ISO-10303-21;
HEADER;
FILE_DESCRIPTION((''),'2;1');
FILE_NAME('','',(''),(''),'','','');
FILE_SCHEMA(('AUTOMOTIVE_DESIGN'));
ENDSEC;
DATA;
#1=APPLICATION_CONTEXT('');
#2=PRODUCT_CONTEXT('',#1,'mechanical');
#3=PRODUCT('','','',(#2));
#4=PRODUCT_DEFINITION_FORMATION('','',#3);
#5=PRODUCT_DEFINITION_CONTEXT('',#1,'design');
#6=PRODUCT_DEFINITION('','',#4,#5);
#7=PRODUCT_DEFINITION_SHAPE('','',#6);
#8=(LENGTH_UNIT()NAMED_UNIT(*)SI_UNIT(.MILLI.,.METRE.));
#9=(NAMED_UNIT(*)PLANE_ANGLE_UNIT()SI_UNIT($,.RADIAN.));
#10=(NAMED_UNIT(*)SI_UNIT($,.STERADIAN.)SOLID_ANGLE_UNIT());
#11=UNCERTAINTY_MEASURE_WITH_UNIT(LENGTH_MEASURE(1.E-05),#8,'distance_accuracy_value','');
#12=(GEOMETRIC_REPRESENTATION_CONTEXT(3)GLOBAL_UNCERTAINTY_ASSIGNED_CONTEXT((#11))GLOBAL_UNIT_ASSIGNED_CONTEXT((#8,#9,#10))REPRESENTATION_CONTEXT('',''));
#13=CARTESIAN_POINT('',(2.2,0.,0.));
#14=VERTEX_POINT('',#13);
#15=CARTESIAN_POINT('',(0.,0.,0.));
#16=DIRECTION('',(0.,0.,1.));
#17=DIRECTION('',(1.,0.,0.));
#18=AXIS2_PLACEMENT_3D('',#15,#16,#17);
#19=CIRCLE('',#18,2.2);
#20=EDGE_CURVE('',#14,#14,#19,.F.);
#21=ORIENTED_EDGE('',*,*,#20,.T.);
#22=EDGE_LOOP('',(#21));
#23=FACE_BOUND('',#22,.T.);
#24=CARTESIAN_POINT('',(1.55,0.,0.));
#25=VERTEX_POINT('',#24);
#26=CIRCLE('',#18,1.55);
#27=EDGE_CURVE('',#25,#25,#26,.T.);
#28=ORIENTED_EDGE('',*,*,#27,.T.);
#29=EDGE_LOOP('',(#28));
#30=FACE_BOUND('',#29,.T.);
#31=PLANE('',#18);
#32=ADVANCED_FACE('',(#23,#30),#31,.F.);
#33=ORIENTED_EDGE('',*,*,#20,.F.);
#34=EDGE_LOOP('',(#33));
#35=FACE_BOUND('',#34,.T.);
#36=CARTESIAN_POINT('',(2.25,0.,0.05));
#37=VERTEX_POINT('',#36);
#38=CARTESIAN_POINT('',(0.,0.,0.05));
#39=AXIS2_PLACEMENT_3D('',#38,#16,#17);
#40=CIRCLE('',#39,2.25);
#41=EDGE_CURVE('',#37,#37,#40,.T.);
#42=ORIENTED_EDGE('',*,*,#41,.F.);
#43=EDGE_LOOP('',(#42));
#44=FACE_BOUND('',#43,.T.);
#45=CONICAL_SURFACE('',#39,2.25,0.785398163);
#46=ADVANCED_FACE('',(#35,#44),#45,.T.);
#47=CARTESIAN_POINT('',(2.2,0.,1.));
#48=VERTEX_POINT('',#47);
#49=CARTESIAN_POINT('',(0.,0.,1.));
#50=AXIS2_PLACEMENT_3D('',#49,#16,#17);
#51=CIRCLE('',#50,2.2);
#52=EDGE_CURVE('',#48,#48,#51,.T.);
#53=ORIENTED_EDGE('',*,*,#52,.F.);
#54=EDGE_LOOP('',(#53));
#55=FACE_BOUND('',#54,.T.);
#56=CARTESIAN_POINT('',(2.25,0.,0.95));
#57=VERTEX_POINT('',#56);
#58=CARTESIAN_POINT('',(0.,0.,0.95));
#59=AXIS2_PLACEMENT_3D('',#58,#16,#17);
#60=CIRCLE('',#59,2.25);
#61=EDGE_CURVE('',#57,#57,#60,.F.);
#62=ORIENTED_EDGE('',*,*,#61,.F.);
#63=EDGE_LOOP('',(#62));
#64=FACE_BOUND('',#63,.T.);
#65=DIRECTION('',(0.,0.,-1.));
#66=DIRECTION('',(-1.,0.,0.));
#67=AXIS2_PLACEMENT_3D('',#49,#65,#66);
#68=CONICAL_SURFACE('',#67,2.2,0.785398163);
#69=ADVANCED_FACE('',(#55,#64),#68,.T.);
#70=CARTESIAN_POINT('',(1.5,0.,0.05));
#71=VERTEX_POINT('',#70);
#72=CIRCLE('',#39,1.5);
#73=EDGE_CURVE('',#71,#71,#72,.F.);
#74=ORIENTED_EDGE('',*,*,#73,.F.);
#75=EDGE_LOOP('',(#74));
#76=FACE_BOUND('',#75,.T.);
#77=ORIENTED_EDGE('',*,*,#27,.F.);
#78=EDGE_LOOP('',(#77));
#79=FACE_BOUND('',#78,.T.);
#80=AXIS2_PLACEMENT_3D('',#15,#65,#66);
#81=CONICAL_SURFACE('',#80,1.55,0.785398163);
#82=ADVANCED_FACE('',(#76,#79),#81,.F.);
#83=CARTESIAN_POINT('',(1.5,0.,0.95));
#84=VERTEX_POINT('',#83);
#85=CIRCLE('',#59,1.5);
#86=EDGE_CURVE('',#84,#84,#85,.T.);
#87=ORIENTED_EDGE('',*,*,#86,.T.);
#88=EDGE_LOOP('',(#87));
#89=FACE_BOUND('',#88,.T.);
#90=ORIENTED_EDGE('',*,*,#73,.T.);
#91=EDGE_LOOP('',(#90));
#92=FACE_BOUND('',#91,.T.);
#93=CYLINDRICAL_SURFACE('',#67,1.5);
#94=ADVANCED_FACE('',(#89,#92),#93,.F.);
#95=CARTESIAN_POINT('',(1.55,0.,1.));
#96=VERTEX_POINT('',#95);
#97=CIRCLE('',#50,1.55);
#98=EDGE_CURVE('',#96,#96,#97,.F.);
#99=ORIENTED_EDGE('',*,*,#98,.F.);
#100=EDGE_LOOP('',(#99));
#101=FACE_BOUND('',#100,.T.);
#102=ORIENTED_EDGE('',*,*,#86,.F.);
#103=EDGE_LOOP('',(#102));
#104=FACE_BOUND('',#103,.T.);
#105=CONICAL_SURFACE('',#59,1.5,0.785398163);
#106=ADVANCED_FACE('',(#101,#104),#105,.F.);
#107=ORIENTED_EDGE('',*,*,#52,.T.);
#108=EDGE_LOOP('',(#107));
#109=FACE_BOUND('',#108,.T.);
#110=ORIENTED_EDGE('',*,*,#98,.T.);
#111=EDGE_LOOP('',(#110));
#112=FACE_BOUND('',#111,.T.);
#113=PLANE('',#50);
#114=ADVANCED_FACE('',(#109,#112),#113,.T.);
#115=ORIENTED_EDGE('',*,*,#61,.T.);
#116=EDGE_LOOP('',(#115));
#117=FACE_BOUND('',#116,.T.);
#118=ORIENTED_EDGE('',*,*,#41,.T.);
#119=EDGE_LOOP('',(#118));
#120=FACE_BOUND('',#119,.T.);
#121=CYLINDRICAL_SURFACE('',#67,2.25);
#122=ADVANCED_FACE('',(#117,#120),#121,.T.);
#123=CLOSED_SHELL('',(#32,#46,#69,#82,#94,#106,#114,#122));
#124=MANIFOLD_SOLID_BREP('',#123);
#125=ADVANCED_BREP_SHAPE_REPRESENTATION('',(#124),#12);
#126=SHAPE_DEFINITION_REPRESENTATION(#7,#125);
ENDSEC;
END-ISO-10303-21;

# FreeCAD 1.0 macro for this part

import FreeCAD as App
import Part
import Sketcher
from FreeCAD import Vector


def edges_at(feature, points):
    """Names of the edges that pass closest to the given points."""
    edges = feature.Shape.Edges
    near = lambda p: min(range(len(edges)), key=lambda i: edges[i].distToShape(Part.Vertex(*p))[0])
    return sorted({f"Edge{near(p) + 1}" for p in points})

doc = App.newDocument("Part")
body = doc.addObject("PartDesign::Body", "Body")

# Sketch on XY plane
sketch1 = body.newObject("Sketcher::SketchObject", "Sketch")
sketch1.AttachmentSupport = (doc.getObject("XY_Plane"), [""])
sketch1.MapMode = "FlatFace"
sketch1.addGeometry(Part.Circle(Vector(0, 0, 0), Vector(0, 0, 1), 2.2), False)
sketch1.addGeometry(Part.Circle(Vector(0, 0, 0), Vector(0, 0, 1), 1.5), False)
sketch1.addConstraint(Sketcher.Constraint("Coincident", 0, 3, -1, 1))
sketch1.addConstraint(Sketcher.Constraint("Coincident", 1, 3, -1, 1))
sketch1.addConstraint(Sketcher.Constraint("Diameter", 1, 3.0))
sketch1.addConstraint(Sketcher.Constraint("Diameter", 0, 4.5))
pad1 = body.newObject("PartDesign::Pad", "Pad")
pad1.Profile = sketch1
pad1.Length = 1
doc.recompute()

chamfer = body.newObject("PartDesign::Chamfer", "Chamfer")
chamfer.Base = (pad1, edges_at(pad1, [
    (-2.25, 0, 0),
    (-2.25, 0, 1),
    (-1.5, 0, 0),
    (-1.5, 0, 1),
]))
chamfer.Size = 0.05

doc.recompute()
